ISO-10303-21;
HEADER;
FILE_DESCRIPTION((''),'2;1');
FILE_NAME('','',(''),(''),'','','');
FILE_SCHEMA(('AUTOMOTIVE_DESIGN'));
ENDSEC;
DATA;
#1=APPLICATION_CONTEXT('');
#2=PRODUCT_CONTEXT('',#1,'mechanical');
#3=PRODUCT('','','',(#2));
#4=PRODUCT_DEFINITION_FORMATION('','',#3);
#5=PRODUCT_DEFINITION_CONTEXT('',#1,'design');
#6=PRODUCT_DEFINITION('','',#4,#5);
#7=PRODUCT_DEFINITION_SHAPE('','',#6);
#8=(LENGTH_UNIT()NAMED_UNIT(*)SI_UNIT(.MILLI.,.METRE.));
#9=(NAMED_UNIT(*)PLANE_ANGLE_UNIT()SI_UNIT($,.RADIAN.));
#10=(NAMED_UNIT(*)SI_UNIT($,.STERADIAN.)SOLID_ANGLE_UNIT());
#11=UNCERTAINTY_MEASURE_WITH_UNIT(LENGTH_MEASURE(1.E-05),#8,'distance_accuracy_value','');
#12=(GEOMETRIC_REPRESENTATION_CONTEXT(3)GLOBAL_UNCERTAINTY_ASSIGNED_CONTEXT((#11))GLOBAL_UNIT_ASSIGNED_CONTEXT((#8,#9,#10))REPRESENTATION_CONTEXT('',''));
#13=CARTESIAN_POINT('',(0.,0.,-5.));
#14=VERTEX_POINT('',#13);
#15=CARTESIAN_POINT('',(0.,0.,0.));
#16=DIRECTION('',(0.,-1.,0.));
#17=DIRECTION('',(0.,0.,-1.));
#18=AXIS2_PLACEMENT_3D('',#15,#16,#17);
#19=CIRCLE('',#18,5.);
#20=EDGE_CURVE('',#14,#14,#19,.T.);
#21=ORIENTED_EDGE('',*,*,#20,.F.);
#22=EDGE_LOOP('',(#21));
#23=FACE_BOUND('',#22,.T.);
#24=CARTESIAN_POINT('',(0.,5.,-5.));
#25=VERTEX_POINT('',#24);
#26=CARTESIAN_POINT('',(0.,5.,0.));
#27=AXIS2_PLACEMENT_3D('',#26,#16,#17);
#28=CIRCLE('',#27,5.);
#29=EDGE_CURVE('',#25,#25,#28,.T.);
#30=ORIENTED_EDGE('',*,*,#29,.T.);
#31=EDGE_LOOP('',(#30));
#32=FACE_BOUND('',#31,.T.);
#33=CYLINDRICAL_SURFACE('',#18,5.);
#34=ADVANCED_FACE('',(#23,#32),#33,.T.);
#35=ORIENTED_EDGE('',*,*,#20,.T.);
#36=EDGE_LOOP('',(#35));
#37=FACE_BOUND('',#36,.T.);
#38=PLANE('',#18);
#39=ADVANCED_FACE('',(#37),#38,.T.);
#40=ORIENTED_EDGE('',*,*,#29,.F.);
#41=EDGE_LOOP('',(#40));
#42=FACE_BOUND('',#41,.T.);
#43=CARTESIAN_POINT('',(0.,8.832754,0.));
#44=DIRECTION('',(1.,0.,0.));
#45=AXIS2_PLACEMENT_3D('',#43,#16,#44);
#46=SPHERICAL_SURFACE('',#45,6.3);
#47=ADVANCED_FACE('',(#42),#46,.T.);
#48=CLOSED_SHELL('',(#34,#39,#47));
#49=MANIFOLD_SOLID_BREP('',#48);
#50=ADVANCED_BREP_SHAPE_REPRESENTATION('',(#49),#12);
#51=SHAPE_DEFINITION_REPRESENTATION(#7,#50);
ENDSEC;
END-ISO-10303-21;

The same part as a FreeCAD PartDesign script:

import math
import FreeCAD as App
import Part
import Sketcher

V = App.Vector

doc = App.newDocument("Part")
body = doc.addObject("PartDesign::Body", "Body")

# Sketch on XY plane
sketch1 = body.newObject("Sketcher::SketchObject", "Sketch")
sketch1.AttachmentSupport = (doc.getObject("XY_Plane"), [""])
sketch1.MapMode = "FlatFace"
sketch1.addGeometry([
    Part.LineSegment(V(0, 0, 0), V(5, 0, 0)),
    Part.LineSegment(V(5, 0, 0), V(5, 5, 0)),
    Part.ArcOfCircle(Part.Circle(V(0, 9, 0), V(0, 0, 1), 6), math.radians(-37), math.radians(90)),
    Part.LineSegment(V(0, 15, 0), V(0, 0, 0)),
], False)
sketch1.addConstraint([
    Sketcher.Constraint("Coincident", 0, 2, 1, 1),
    Sketcher.Constraint("Coincident", 1, 2, 2, 1),
    Sketcher.Constraint("Coincident", 2, 2, 3, 1),
    Sketcher.Constraint("Coincident", 3, 2, 0, 1),
    Sketcher.Constraint("Horizontal", 0),
    Sketcher.Constraint("Vertical", 1),
    Sketcher.Constraint("Vertical", 3),
    Sketcher.Constraint("Coincident", 3, 2, -1, 1),
    Sketcher.Constraint("PointOnObject", 2, 3, -2),
    Sketcher.Constraint("Equal", 0, 1),
    Sketcher.Constraint("Radius", 2, 6.3),
    Sketcher.Constraint("DistanceX", 0, 1, 0, 2, 5.0),
])
revolution = body.newObject("PartDesign::Revolution", "Revolution")
revolution.Profile = sketch1
revolution.ReferenceAxis = (sketch1, ["V_Axis"])
revolution.Angle = 360

doc.recompute()
